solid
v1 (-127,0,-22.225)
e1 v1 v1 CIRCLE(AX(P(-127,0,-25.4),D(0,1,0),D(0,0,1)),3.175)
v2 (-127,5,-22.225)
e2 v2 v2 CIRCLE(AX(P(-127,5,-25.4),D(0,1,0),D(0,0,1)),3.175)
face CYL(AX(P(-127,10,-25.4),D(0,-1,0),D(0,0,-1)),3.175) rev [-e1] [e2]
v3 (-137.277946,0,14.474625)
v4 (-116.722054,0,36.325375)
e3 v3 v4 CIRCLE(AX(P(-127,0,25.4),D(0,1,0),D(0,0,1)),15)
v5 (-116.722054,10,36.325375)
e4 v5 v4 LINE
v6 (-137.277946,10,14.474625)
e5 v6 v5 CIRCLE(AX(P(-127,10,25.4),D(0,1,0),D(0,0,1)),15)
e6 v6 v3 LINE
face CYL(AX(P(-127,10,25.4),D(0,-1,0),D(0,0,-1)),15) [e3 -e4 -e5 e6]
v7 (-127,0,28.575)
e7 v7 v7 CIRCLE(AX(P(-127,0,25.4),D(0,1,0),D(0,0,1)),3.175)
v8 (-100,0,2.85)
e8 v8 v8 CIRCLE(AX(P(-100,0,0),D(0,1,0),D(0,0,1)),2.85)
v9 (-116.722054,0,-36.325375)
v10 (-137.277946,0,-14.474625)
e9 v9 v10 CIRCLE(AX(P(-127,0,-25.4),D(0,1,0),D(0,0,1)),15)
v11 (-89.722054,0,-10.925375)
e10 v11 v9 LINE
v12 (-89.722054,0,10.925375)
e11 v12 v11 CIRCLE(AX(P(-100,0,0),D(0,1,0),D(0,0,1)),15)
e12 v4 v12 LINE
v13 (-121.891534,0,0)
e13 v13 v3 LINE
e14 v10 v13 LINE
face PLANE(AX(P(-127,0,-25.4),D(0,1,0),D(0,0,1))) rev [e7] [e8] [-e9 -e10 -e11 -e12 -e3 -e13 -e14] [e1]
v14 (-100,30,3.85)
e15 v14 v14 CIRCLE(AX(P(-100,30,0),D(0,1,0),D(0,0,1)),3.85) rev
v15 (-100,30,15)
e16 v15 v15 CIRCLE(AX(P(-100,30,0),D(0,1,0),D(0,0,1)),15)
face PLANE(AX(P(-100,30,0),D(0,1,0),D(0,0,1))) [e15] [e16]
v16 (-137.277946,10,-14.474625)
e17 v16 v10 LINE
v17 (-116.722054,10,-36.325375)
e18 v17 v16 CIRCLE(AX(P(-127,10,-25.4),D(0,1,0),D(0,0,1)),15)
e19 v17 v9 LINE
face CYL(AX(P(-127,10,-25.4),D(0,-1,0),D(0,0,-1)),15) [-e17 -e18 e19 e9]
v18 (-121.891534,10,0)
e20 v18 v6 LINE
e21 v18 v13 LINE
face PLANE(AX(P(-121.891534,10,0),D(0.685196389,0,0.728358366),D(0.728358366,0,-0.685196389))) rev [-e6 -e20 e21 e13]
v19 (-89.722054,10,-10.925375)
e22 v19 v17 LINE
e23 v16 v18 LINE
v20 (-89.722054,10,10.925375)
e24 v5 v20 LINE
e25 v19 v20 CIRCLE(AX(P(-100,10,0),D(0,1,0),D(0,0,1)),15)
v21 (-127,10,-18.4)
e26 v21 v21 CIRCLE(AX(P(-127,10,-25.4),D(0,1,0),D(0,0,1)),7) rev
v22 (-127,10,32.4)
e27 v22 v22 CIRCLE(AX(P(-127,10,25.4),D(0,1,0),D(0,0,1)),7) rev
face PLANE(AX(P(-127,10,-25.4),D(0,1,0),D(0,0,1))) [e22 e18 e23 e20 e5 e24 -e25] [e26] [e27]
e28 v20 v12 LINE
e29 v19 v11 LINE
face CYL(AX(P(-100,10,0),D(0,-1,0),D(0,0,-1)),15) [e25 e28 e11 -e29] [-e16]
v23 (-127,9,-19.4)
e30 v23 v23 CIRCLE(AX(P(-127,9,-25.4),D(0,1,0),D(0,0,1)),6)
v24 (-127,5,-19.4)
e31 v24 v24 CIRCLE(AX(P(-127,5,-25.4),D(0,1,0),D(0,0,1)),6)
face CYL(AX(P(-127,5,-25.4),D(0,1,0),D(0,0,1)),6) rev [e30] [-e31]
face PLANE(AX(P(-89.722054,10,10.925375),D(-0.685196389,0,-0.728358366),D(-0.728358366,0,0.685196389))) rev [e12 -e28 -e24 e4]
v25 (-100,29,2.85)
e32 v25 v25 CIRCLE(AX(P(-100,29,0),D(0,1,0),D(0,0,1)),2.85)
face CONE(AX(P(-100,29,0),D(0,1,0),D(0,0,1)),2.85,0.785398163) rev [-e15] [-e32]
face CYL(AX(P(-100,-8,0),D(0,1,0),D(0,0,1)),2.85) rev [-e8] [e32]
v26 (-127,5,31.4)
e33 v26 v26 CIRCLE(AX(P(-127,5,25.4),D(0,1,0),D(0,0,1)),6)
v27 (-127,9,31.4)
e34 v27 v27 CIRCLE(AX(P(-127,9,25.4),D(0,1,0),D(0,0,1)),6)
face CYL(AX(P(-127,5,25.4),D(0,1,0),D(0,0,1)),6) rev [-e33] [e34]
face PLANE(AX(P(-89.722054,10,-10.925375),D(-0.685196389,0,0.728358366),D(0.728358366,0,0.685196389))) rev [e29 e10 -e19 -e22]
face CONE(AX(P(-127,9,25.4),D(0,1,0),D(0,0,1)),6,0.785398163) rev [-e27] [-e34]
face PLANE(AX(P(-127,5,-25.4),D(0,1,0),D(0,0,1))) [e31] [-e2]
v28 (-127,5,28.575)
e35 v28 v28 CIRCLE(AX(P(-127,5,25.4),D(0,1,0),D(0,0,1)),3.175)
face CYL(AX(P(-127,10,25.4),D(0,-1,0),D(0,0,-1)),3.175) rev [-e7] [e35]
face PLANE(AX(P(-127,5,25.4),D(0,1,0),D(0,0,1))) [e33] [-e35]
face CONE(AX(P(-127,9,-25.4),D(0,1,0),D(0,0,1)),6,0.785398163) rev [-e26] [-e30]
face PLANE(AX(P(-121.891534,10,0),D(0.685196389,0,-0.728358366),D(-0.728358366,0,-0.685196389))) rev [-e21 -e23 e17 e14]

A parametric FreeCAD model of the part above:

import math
import FreeCAD as App
import Part
import Sketcher

V = App.Vector
Q = App.Units.Quantity


def edges_at(feature, points):
    """Names of the edges that pass closest to the given points."""
    edges = feature.Shape.Edges
    near = lambda p: min(range(len(edges)), key=lambda i: edges[i].distToShape(Part.Vertex(*p))[0])
    return sorted({f"Edge{near(p) + 1}" for p in points})

doc = App.newDocument("Part")
params = doc.addObject("Spreadsheet::Sheet", "Params")
for row, (alias, value) in enumerate([
    ("sketch1_radius", "15 mm"),
    ("sketch1_diameter", "6.35 mm"),
    ("pad1_length", "10 mm"),
    ("sketch2_diameter", "30 mm"),
    ("pad2_length", "20 mm"),
    ("sketch3_diameter", "5.7 mm"),
    ("pocket1_length", "38 mm"),
    ("sketch4_diameter", "12 mm"),
    ("pocket2_length", "5 mm"),
    ("sketch5_diameter", "12 mm"),
    ("pocket3_length", "5 mm"),
    ("chamfer_size", "1 mm"),
], start=1):
    params.set(f"A{row}", alias)
    params.set(f"B{row}", "=" + value)
    params.setAlias(f"B{row}", alias)

body = doc.addObject("PartDesign::Body", "Body")

sketch1 = body.newObject("Sketcher::SketchObject", "Sketch")
sketch1.AttachmentSupport = (doc.getObject("XZ_Plane"), [""])
sketch1.MapMode = "FlatFace"
sketch1.addGeometry([
    Part.LineSegment(V(-89.7, -10.9, 0), V(-116.7, -36.3, 0)),
    Part.ArcOfCircle(Part.Circle(V(-127, -25.4, 0), V(0, 0, 1), 15), math.radians(133), math.radians(313)),
    Part.LineSegment(V(-137.3, -14.5, 0), V(-121.9, 0, 0)),
    Part.LineSegment(V(-121.9, 0, 0), V(-137.3, 14.5, 0)),
    Part.ArcOfCircle(Part.Circle(V(-127, 25.4, 0), V(0, 0, 1), 15), math.radians(47), math.radians(227)),
    Part.LineSegment(V(-116.7, 36.3, 0), V(-89.7, 10.9, 0)),
    Part.ArcOfCircle(Part.Circle(V(-100, 0, 0), V(0, 0, 1), 15), math.radians(-47), math.radians(47)),
    Part.Circle(V(-127, 25.4, 0), V(0, 0, 1), 3.2),
    Part.Circle(V(-127, -25.4, 0), V(0, 0, 1), 3.2),
], False)
sketch1.addConstraint([
    Sketcher.Constraint("Tangent", 0, 2, 1, 2),
    Sketcher.Constraint("Tangent", 1, 1, 2, 1),
    Sketcher.Constraint("Coincident", 2, 2, 3, 1),
    Sketcher.Constraint("Tangent", 3, 2, 4, 2),
    Sketcher.Constraint("Tangent", 4, 1, 5, 1),
    Sketcher.Constraint("Tangent", 5, 2, 6, 2),
    Sketcher.Constraint("Tangent", 6, 1, 0, 1),
    Sketcher.Constraint("Coincident", 7, 3, 4, 3),
    Sketcher.Constraint("Coincident", 8, 3, 1, 3),
    Sketcher.Constraint("Equal", 1, 4),
    Sketcher.Constraint("Equal", 4, 6),
    Sketcher.Constraint("Equal", 7, 8),
    Sketcher.Constraint("Symmetric", 1, 3, 4, 3, -1),
    Sketcher.Constraint("PointOnObject", 6, 3, -1),
    Sketcher.Constraint("PointOnObject", 2, 2, -1),
    Sketcher.Constraint("Parallel", 0, 2),
    Sketcher.Constraint("Radius", 1, Q("15 mm")),
    Sketcher.Constraint("Diameter", 7, Q("6.35 mm")),
    Sketcher.Constraint("DistanceX", 1, 3, -1, 1, Q("127 mm")),
    Sketcher.Constraint("DistanceX", 6, 3, -1, 1, Q("100 mm")),
    Sketcher.Constraint("DistanceY", 1, 3, -1, 1, Q("25.4 mm")),
])
sketch1.setExpression("Constraints[16]", "Params.sketch1_radius")
sketch1.setExpression("Constraints[17]", "Params.sketch1_diameter")
pad1 = body.newObject("PartDesign::Pad", "Pad")
pad1.Profile = sketch1
pad1.setExpression("Length", "Params.pad1_length")
pad1.Reversed = True

sketch2 = body.newObject("Sketcher::SketchObject", "Sketch001")
sketch2.AttachmentSupport = (doc.getObject("XZ_Plane"), [""])
sketch2.MapMode = "FlatFace"
sketch2.AttachmentOffset = App.Placement(V(0, 0, -10), App.Rotation())
sketch2.addGeometry(Part.Circle(V(-100, 0, 0), V(0, 0, 1), 15), False)
sketch2.addConstraint([
    Sketcher.Constraint("PointOnObject", 0, 3, -1),
    Sketcher.Constraint("Diameter", 0, Q("30 mm")),
    Sketcher.Constraint("DistanceX", 0, 3, -1, 1, Q("100 mm")),
])
sketch2.setExpression("Constraints[1]", "Params.sketch2_diameter")
pad2 = body.newObject("PartDesign::Pad", "Pad001")
pad2.Profile = sketch2
pad2.setExpression("Length", "Params.pad2_length")
pad2.Reversed = True

sketch3 = body.newObject("Sketcher::SketchObject", "Sketch002")
sketch3.AttachmentSupport = (doc.getObject("XZ_Plane"), [""])
sketch3.MapMode = "FlatFace"
sketch3.AttachmentOffset = App.Placement(V(0, 0, -30), App.Rotation())
sketch3.addGeometry(Part.Circle(V(-100, 0, 0), V(0, 0, 1), 2.9), False)
sketch3.addConstraint([
    Sketcher.Constraint("PointOnObject", 0, 3, -1),
    Sketcher.Constraint("Diameter", 0, Q("5.7 mm")),
    Sketcher.Constraint("DistanceX", 0, 3, -1, 1, Q("100 mm")),
])
sketch3.setExpression("Constraints[1]", "Params.sketch3_diameter")
pocket1 = body.newObject("PartDesign::Pocket", "Pocket")
pocket1.Profile = sketch3
pocket1.setExpression("Length", "Params.pocket1_length")
pocket1.Reversed = True

sketch4 = body.newObject("Sketcher::SketchObject", "Sketch003")
sketch4.AttachmentSupport = (doc.getObject("XZ_Plane"), [""])
sketch4.MapMode = "FlatFace"
sketch4.AttachmentOffset = App.Placement(V(0, 0, -10), App.Rotation())
sketch4.addGeometry(Part.Circle(V(-127, 25, 0), V(0, 0, 1), 6), False)
sketch4.addConstraint([
    Sketcher.Constraint("Diameter", 0, Q("12 mm")),
    Sketcher.Constraint("DistanceX", 0, 3, -1, 1, Q("127 mm")),
    Sketcher.Constraint("DistanceY", -1, 1, 0, 3, Q("25.4 mm")),
])
sketch4.setExpression("Constraints[0]", "Params.sketch4_diameter")
pocket2 = body.newObject("PartDesign::Pocket", "Pocket001")
pocket2.Profile = sketch4
pocket2.setExpression("Length", "Params.pocket2_length")
pocket2.Reversed = True

sketch5 = body.newObject("Sketcher::SketchObject", "Sketch004")
sketch5.AttachmentSupport = (doc.getObject("XZ_Plane"), [""])
sketch5.MapMode = "FlatFace"
sketch5.AttachmentOffset = App.Placement(V(0, 0, -10), App.Rotation())
sketch5.addGeometry(Part.Circle(V(-127, -25, 0), V(0, 0, 1), 6), False)
sketch5.addConstraint([
    Sketcher.Constraint("Diameter", 0, Q("12 mm")),
    Sketcher.Constraint("DistanceX", 0, 3, -1, 1, Q("127 mm")),
    Sketcher.Constraint("DistanceY", 0, 3, -1, 1, Q("25.4 mm")),
])
sketch5.setExpression("Constraints[0]", "Params.sketch5_diameter")
pocket3 = body.newObject("PartDesign::Pocket", "Pocket002")
pocket3.Profile = sketch5
pocket3.setExpression("Length", "Params.pocket3_length")
pocket3.Reversed = True
doc.recompute()

chamfer = body.newObject("PartDesign::Chamfer", "Chamfer")
chamfer.Base = (pocket3, edges_at(pocket3, [(-102.85, 30, 0), (-133, 10, 25.4), (-133, 10, -25.4)]))
chamfer.setExpression("Size", "Params.chamfer_size")

doc.recompute()
